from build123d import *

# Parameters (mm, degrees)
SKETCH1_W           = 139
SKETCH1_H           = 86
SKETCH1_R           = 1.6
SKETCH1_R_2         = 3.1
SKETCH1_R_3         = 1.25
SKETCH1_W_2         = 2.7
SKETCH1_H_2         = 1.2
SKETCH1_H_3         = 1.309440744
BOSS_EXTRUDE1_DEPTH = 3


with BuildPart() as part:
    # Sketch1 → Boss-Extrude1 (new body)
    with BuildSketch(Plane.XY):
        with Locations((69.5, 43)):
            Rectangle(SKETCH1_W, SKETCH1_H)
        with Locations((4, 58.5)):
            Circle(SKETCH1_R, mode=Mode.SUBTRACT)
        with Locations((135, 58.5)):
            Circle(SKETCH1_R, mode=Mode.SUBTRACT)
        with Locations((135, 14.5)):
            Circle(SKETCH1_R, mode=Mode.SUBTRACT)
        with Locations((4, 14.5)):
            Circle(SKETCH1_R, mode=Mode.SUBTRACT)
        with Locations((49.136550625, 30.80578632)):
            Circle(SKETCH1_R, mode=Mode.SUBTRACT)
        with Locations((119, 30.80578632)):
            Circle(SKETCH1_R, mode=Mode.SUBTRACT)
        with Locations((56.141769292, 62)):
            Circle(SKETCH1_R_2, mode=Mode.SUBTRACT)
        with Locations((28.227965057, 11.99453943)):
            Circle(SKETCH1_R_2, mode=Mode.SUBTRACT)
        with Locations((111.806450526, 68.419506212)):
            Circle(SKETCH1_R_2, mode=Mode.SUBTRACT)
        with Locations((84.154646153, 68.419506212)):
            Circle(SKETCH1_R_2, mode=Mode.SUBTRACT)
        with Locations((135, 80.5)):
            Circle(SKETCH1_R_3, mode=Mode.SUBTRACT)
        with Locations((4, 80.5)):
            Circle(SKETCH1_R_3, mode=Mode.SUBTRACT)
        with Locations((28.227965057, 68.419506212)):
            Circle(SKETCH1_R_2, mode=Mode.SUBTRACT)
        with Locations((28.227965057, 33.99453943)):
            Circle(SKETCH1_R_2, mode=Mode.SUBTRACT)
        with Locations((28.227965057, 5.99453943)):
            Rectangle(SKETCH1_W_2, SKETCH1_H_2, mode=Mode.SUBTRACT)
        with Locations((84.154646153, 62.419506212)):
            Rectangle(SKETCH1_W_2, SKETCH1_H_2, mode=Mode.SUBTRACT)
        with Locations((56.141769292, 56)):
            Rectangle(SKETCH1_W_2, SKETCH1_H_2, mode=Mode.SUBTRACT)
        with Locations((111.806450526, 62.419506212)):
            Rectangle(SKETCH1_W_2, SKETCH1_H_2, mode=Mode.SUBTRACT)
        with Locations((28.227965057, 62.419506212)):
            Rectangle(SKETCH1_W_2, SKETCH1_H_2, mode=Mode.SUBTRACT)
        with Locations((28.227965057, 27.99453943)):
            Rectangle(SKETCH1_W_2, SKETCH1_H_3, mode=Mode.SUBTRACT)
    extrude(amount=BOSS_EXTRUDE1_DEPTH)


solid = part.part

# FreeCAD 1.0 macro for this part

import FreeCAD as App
import Part
import Sketcher
Q = App.Units.Quantity

doc = App.newDocument("Part")
body = doc.addObject("PartDesign::Body", "Body")

# Sketch on XY plane
sketch1 = body.newObject("Sketcher::SketchObject", "Sketch")
sketch1.AttachmentSupport = (doc.getObject("XY_Plane"), [""])
sketch1.MapMode = "FlatFace"
sketch1.addGeometry(Part.LineSegment(App.Vector(0, 86, 0), App.Vector(0, 0, 0)), False)
sketch1.addGeometry(Part.LineSegment(App.Vector(0, 0, 0), App.Vector(139, 0, 0)), False)
sketch1.addGeometry(Part.LineSegment(App.Vector(139, 0, 0), App.Vector(139, 86, 0)), False)
sketch1.addGeometry(Part.LineSegment(App.Vector(139, 86, 0), App.Vector(0, 86, 0)), False)
sketch1.addGeometry(Part.Circle(App.Vector(4, 14.5, 0), App.Vector(0, 0, 1), 1.6), False)
sketch1.addGeometry(Part.LineSegment(App.Vector(29.577965, 5.394539, 0), App.Vector(26.877965, 5.394539, 0)), False)
sketch1.addGeometry(Part.LineSegment(App.Vector(26.877965, 5.394539, 0), App.Vector(26.877965, 6.594539, 0)), False)
sketch1.addGeometry(Part.LineSegment(App.Vector(26.877965, 6.594539, 0), App.Vector(29.577965, 6.594539, 0)), False)
sketch1.addGeometry(Part.LineSegment(App.Vector(29.577965, 6.594539, 0), App.Vector(29.577965, 5.394539, 0)), False)
sketch1.addGeometry(Part.Circle(App.Vector(28.227965, 11.994539, 0), App.Vector(0, 0, 1), 3.1), False)
sketch1.addGeometry(Part.LineSegment(App.Vector(29.577965, 27.339819, 0), App.Vector(26.877965, 27.339819, 0)), False)
sketch1.addGeometry(Part.LineSegment(App.Vector(26.877965, 27.339819, 0), App.Vector(26.877965, 28.64926, 0)), False)
sketch1.addGeometry(Part.LineSegment(App.Vector(26.877965, 28.64926, 0), App.Vector(29.577965, 28.64926, 0)), False)
sketch1.addGeometry(Part.LineSegment(App.Vector(29.577965, 28.64926, 0), App.Vector(29.577965, 27.339819, 0)), False)
sketch1.addGeometry(Part.Circle(App.Vector(28.227965, 33.994539, 0), App.Vector(0, 0, 1), 3.1), False)
sketch1.addGeometry(Part.Circle(App.Vector(49.136551, 30.805786, 0), App.Vector(0, 0, 1), 1.6), False)
sketch1.addGeometry(Part.Circle(App.Vector(135, 14.5, 0), App.Vector(0, 0, 1), 1.6), False)
sketch1.addGeometry(Part.Circle(App.Vector(119, 30.805786, 0), App.Vector(0, 0, 1), 1.6), False)
sketch1.addGeometry(Part.Circle(App.Vector(4, 58.5, 0), App.Vector(0, 0, 1), 1.6), False)
sketch1.addGeometry(Part.LineSegment(App.Vector(29.577965, 61.819506, 0), App.Vector(26.877965, 61.819506, 0)), False)
sketch1.addGeometry(Part.LineSegment(App.Vector(26.877965, 61.819506, 0), App.Vector(26.877965, 63.019506, 0)), False)
sketch1.addGeometry(Part.LineSegment(App.Vector(26.877965, 63.019506, 0), App.Vector(29.577965, 63.019506, 0)), False)
sketch1.addGeometry(Part.LineSegment(App.Vector(29.577965, 63.019506, 0), App.Vector(29.577965, 61.819506, 0)), False)
sketch1.addGeometry(Part.LineSegment(App.Vector(57.491769, 55.4, 0), App.Vector(54.791769, 55.4, 0)), False)
sketch1.addGeometry(Part.LineSegment(App.Vector(54.791769, 55.4, 0), App.Vector(54.791769, 56.6, 0)), False)
sketch1.addGeometry(Part.LineSegment(App.Vector(54.791769, 56.6, 0), App.Vector(57.491769, 56.6, 0)), False)
sketch1.addGeometry(Part.LineSegment(App.Vector(57.491769, 56.6, 0), App.Vector(57.491769, 55.4, 0)), False)
sketch1.addGeometry(Part.Circle(App.Vector(56.141769, 62, 0), App.Vector(0, 0, 1), 3.1), False)
sketch1.addGeometry(Part.Circle(App.Vector(28.227965, 68.419506, 0), App.Vector(0, 0, 1), 3.1), False)
sketch1.addGeometry(Part.Circle(App.Vector(4, 80.5, 0), App.Vector(0, 0, 1), 1.25), False)
sketch1.addGeometry(Part.LineSegment(App.Vector(85.504646, 61.819506, 0), App.Vector(82.804646, 61.819506, 0)), False)
sketch1.addGeometry(Part.LineSegment(App.Vector(82.804646, 61.819506, 0), App.Vector(82.804646, 63.019506, 0)), False)
sketch1.addGeometry(Part.LineSegment(App.Vector(82.804646, 63.019506, 0), App.Vector(85.504646, 63.019506, 0)), False)
sketch1.addGeometry(Part.LineSegment(App.Vector(85.504646, 63.019506, 0), App.Vector(85.504646, 61.819506, 0)), False)
sketch1.addGeometry(Part.LineSegment(App.Vector(113.156451, 61.819506, 0), App.Vector(110.456451, 61.819506, 0)), False)
sketch1.addGeometry(Part.LineSegment(App.Vector(110.456451, 61.819506, 0), App.Vector(110.456451, 63.019506, 0)), False)
sketch1.addGeometry(Part.LineSegment(App.Vector(110.456451, 63.019506, 0), App.Vector(113.156451, 63.019506, 0)), False)
sketch1.addGeometry(Part.LineSegment(App.Vector(113.156451, 63.019506, 0), App.Vector(113.156451, 61.819506, 0)), False)
sketch1.addGeometry(Part.Circle(App.Vector(135, 58.5, 0), App.Vector(0, 0, 1), 1.6), False)
sketch1.addGeometry(Part.Circle(App.Vector(84.154646, 68.419506, 0), App.Vector(0, 0, 1), 3.1), False)
sketch1.addGeometry(Part.Circle(App.Vector(111.806451, 68.419506, 0), App.Vector(0, 0, 1), 3.1), False)
sketch1.addGeometry(Part.Circle(App.Vector(135, 80.5, 0), App.Vector(0, 0, 1), 1.25), False)
sketch1.addConstraint(Sketcher.Constraint("Coincident", 0, 2, 1, 1))
sketch1.addConstraint(Sketcher.Constraint("Coincident", 1, 2, 2, 1))
sketch1.addConstraint(Sketcher.Constraint("Coincident", 2, 2, 3, 1))
sketch1.addConstraint(Sketcher.Constraint("Coincident", 3, 2, 0, 1))
sketch1.addConstraint(Sketcher.Constraint("Coincident", 5, 2, 6, 1))
sketch1.addConstraint(Sketcher.Constraint("Coincident", 6, 2, 7, 1))
sketch1.addConstraint(Sketcher.Constraint("Coincident", 7, 2, 8, 1))
sketch1.addConstraint(Sketcher.Constraint("Coincident", 8, 2, 5, 1))
sketch1.addConstraint(Sketcher.Constraint("Coincident", 10, 2, 11, 1))
sketch1.addConstraint(Sketcher.Constraint("Coincident", 11, 2, 12, 1))
sketch1.addConstraint(Sketcher.Constraint("Coincident", 12, 2, 13, 1))
sketch1.addConstraint(Sketcher.Constraint("Coincident", 13, 2, 10, 1))
sketch1.addConstraint(Sketcher.Constraint("Coincident", 19, 2, 20, 1))
sketch1.addConstraint(Sketcher.Constraint("Coincident", 20, 2, 21, 1))
sketch1.addConstraint(Sketcher.Constraint("Coincident", 21, 2, 22, 1))
sketch1.addConstraint(Sketcher.Constraint("Coincident", 22, 2, 19, 1))
sketch1.addConstraint(Sketcher.Constraint("Coincident", 23, 2, 24, 1))
sketch1.addConstraint(Sketcher.Constraint("Coincident", 24, 2, 25, 1))
sketch1.addConstraint(Sketcher.Constraint("Coincident", 25, 2, 26, 1))
sketch1.addConstraint(Sketcher.Constraint("Coincident", 26, 2, 23, 1))
sketch1.addConstraint(Sketcher.Constraint("Coincident", 30, 2, 31, 1))
sketch1.addConstraint(Sketcher.Constraint("Coincident", 31, 2, 32, 1))
sketch1.addConstraint(Sketcher.Constraint("Coincident", 32, 2, 33, 1))
sketch1.addConstraint(Sketcher.Constraint("Coincident", 33, 2, 30, 1))
sketch1.addConstraint(Sketcher.Constraint("Coincident", 34, 2, 35, 1))
sketch1.addConstraint(Sketcher.Constraint("Coincident", 35, 2, 36, 1))
sketch1.addConstraint(Sketcher.Constraint("Coincident", 36, 2, 37, 1))
sketch1.addConstraint(Sketcher.Constraint("Coincident", 37, 2, 34, 1))
sketch1.addConstraint(Sketcher.Constraint("Vertical", 0))
sketch1.addConstraint(Sketcher.Constraint("Horizontal", 1))
sketch1.addConstraint(Sketcher.Constraint("Vertical", 2))
sketch1.addConstraint(Sketcher.Constraint("Horizontal", 3))
sketch1.addConstraint(Sketcher.Constraint("Horizontal", 5))
sketch1.addConstraint(Sketcher.Constraint("Vertical", 6))
sketch1.addConstraint(Sketcher.Constraint("Horizontal", 7))
sketch1.addConstraint(Sketcher.Constraint("Vertical", 8))
sketch1.addConstraint(Sketcher.Constraint("Horizontal", 10))
sketch1.addConstraint(Sketcher.Constraint("Vertical", 11))
sketch1.addConstraint(Sketcher.Constraint("Horizontal", 12))
sketch1.addConstraint(Sketcher.Constraint("Vertical", 13))
sketch1.addConstraint(Sketcher.Constraint("Horizontal", 19))
sketch1.addConstraint(Sketcher.Constraint("Vertical", 20))
sketch1.addConstraint(Sketcher.Constraint("Horizontal", 21))
sketch1.addConstraint(Sketcher.Constraint("Vertical", 22))
sketch1.addConstraint(Sketcher.Constraint("Horizontal", 23))
sketch1.addConstraint(Sketcher.Constraint("Vertical", 24))
sketch1.addConstraint(Sketcher.Constraint("Horizontal", 25))
sketch1.addConstraint(Sketcher.Constraint("Vertical", 26))
sketch1.addConstraint(Sketcher.Constraint("Horizontal", 30))
sketch1.addConstraint(Sketcher.Constraint("Vertical", 31))
sketch1.addConstraint(Sketcher.Constraint("Horizontal", 32))
sketch1.addConstraint(Sketcher.Constraint("Vertical", 33))
sketch1.addConstraint(Sketcher.Constraint("Horizontal", 34))
sketch1.addConstraint(Sketcher.Constraint("Vertical", 35))
sketch1.addConstraint(Sketcher.Constraint("Horizontal", 36))
sketch1.addConstraint(Sketcher.Constraint("Vertical", 37))
sketch1.addConstraint(Sketcher.Constraint("Coincident", 0, 2, -1, 1))
sketch1.addConstraint(Sketcher.Constraint("Equal", 9, 14))
sketch1.addConstraint(Sketcher.Constraint("Equal", 4, 15))
sketch1.addConstraint(Sketcher.Constraint("Equal", 15, 16))
sketch1.addConstraint(Sketcher.Constraint("Equal", 16, 17))
sketch1.addConstraint(Sketcher.Constraint("Equal", 17, 18))
sketch1.addConstraint(Sketcher.Constraint("Equal", 14, 27))
sketch1.addConstraint(Sketcher.Constraint("Equal", 27, 28))
sketch1.addConstraint(Sketcher.Constraint("Equal", 18, 38))
sketch1.addConstraint(Sketcher.Constraint("Equal", 28, 39))
sketch1.addConstraint(Sketcher.Constraint("Equal", 39, 40))
sketch1.addConstraint(Sketcher.Constraint("Equal", 29, 41))
sketch1.addConstraint(Sketcher.Constraint("Horizontal", 4, 3, 16, 3))
sketch1.addConstraint(Sketcher.Constraint("Horizontal", 15, 3, 17, 3))
sketch1.addConstraint(Sketcher.Constraint("Horizontal", 18, 3, 38, 3))
sketch1.addConstraint(Sketcher.Constraint("Horizontal", 28, 3, 39, 3))
sketch1.addConstraint(Sketcher.Constraint("Horizontal", 39, 3, 40, 3))
sketch1.addConstraint(Sketcher.Constraint("Horizontal", 29, 3, 41, 3))
sketch1.addConstraint(Sketcher.Constraint("Horizontal", 22, 2, 30, 2))
sketch1.addConstraint(Sketcher.Constraint("Horizontal", 21, 2, 31, 2))
sketch1.addConstraint(Sketcher.Constraint("Horizontal", 33, 2, 34, 2))
sketch1.addConstraint(Sketcher.Constraint("Horizontal", 32, 2, 35, 2))
sketch1.addConstraint(Sketcher.Constraint("Vertical", 9, 3, 14, 3))
sketch1.addConstraint(Sketcher.Constraint("Vertical", 4, 3, 18, 3))
sketch1.addConstraint(Sketcher.Constraint("Vertical", 14, 3, 28, 3))
sketch1.addConstraint(Sketcher.Constraint("Vertical", 18, 3, 29, 3))
sketch1.addConstraint(Sketcher.Constraint("Vertical", 16, 3, 38, 3))
sketch1.addConstraint(Sketcher.Constraint("Vertical", 38, 3, 41, 3))
sketch1.addConstraint(Sketcher.Constraint("Vertical", 6, 2, 10, 2))
sketch1.addConstraint(Sketcher.Constraint("Vertical", 8, 2, 12, 2))
sketch1.addConstraint(Sketcher.Constraint("Vertical", 11, 2, 19, 2))
sketch1.addConstraint(Sketcher.Constraint("Vertical", 13, 2, 21, 2))
sketch1.addConstraint(Sketcher.Constraint("Equal", 21, 23))
sketch1.addConstraint(Sketcher.Constraint("Equal", 25, 30))
sketch1.addConstraint(Sketcher.Constraint("Equal", 32, 34))
sketch1.addConstraint(Sketcher.Constraint("Equal", 8, 20))
sketch1.addConstraint(Sketcher.Constraint("Equal", 22, 24))
sketch1.addConstraint(Sketcher.Constraint("Diameter", 4, Q("3.2 mm")))
sketch1.addConstraint(Sketcher.Constraint("Diameter", 9, Q("6.2 mm")))
sketch1.addConstraint(Sketcher.Constraint("Diameter", 29, Q("2.5 mm")))
sketch1.addConstraint(Sketcher.Constraint("DistanceX", 1, 1, 1, 2, Q("139 mm")))
sketch1.addConstraint(Sketcher.Constraint("DistanceY", 0, 2, 0, 1, Q("86 mm")))
sketch1.addConstraint(Sketcher.Constraint("DistanceX", 5, 2, 5, 1, Q("2.7 mm")))
sketch1.addConstraint(Sketcher.Constraint("DistanceY", 6, 1, 6, 2, Q("1.2 mm")))
sketch1.addConstraint(Sketcher.Constraint("DistanceX", -1, 1, 4, 3, Q("4 mm")))
sketch1.addConstraint(Sketcher.Constraint("DistanceX", -1, 1, 16, 3, Q("135 mm")))
sketch1.addConstraint(Sketcher.Constraint("DistanceX", -1, 1, 17, 3, Q("119 mm")))
sketch1.addConstraint(Sketcher.Constraint("DistanceY", -1, 1, 27, 3, Q("62 mm")))
sketch1.addConstraint(Sketcher.Constraint("DistanceY", 9, 3, 14, 3, Q("22 mm")))
sketch1.addConstraint(Sketcher.Constraint("DistanceY", 4, 3, 18, 3, Q("44 mm")))
sketch1.addConstraint(Sketcher.Constraint("DistanceY", 18, 3, 29, 3, Q("22 mm")))
sketch1.addConstraint(Sketcher.Constraint("DistanceY", -1, 1, 4, 3, Q("14.5 mm")))
sketch1.addConstraint(Sketcher.Constraint("DistanceY", -1, 1, 23, 2, Q("55.4 mm")))
sketch1.addConstraint(Sketcher.Constraint("DistanceY", 5, 2, 9, 3, Q("6.6 mm")))
sketch1.addConstraint(Sketcher.Constraint("DistanceY", 19, 2, 28, 3, Q("6.6 mm")))
sketch1.addConstraint(Sketcher.Constraint("DistanceX", 5, 2, 9, 3, Q("1.35 mm")))
sketch1.addConstraint(Sketcher.Constraint("DistanceX", 23, 2, 27, 3, Q("1.35 mm")))
sketch1.addConstraint(Sketcher.Constraint("DistanceX", 30, 2, 39, 3, Q("1.35 mm")))
sketch1.addConstraint(Sketcher.Constraint("DistanceX", 34, 2, 40, 3, Q("1.35 mm")))
sketch1.addConstraint(Sketcher.Constraint("DistanceY", 11, 1, 11, 2, Q("1.309441 mm")))
sketch1.addConstraint(Sketcher.Constraint("DistanceY", -1, 1, 9, 3, Q("11.994539 mm")))
sketch1.addConstraint(Sketcher.Constraint("DistanceX", -1, 1, 15, 3, Q("49.136551 mm")))
sketch1.addConstraint(Sketcher.Constraint("DistanceX", -1, 1, 27, 3, Q("56.141769 mm")))
sketch1.addConstraint(Sketcher.Constraint("DistanceX", -1, 1, 40, 3, Q("111.806451 mm")))
sketch1.addConstraint(Sketcher.Constraint("DistanceY", -1, 1, 10, 2, Q("27.339819 mm")))
sketch1.addConstraint(Sketcher.Constraint("DistanceY", 15, 3, 28, 3, Q("37.61372 mm")))
sketch1.addConstraint(Sketcher.Constraint("DistanceX", 28, 3, 39, 3, Q("55.926681 mm")))
sketch1.addConstraint(Sketcher.Constraint("DistanceX", -1, 1, 9, 3, Q("28.227965 mm")))
sketch1.addConstraint(Sketcher.Constraint("DistanceY", -1, 1, 15, 3, Q("30.805786 mm")))
pad1 = body.newObject("PartDesign::Pad", "Pad")
pad1.Profile = sketch1
pad1.Length = 3

doc.recompute()
